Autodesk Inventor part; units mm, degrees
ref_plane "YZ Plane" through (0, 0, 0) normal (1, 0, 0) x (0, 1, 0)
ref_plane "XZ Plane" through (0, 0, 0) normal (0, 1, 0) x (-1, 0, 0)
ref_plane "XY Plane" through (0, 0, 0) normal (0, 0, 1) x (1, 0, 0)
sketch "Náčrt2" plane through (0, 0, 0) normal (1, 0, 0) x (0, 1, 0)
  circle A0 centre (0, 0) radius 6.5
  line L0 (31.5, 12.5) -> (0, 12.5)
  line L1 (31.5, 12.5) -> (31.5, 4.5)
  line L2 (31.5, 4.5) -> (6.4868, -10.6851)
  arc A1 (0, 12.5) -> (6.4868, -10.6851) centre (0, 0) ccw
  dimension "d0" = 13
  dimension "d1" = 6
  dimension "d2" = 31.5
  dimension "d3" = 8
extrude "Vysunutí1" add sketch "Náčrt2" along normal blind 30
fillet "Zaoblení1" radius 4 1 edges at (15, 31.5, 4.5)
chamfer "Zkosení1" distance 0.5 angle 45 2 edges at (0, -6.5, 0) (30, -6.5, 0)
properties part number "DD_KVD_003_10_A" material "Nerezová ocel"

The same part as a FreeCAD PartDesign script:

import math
import FreeCAD as App
import Part
import Sketcher

V = App.Vector
Q = App.Units.Quantity


def edges_at(feature, points):
    """Names of the edges that pass closest to the given points."""
    edges = feature.Shape.Edges
    near = lambda p: min(range(len(edges)), key=lambda i: edges[i].distToShape(Part.Vertex(*p))[0])
    return sorted({f"Edge{near(p) + 1}" for p in points})

doc = App.newDocument("Part")
params = doc.addObject("Spreadsheet::Sheet", "Params")
for row, (alias, value) in enumerate([
    ("sketch1_diameter", "13 mm"),
    ("sketch1_height", "8 mm"),
    ("sketch1_width", "31.5 mm"),
    ("sketch1_radius", "12.5 mm"),
    ("pad1_length", "30 mm"),
    ("fillet_radius", "4 mm"),
    ("chamfer_size", "0.5 mm"),
], start=1):
    params.set(f"A{row}", alias)
    params.set(f"B{row}", "=" + value)
    params.setAlias(f"B{row}", alias)

body = doc.addObject("PartDesign::Body", "Body")

sketch1 = body.newObject("Sketcher::SketchObject", "Sketch")
sketch1.AttachmentSupport = (doc.getObject("YZ_Plane"), [""])
sketch1.MapMode = "FlatFace"
sketch1.addGeometry([
    Part.LineSegment(V(31.5, 4.5, 0), V(31.5, 12.5, 0)),
    Part.LineSegment(V(31.5, 12.5, 0), V(0, 12.5, 0)),
    Part.ArcOfCircle(Part.Circle(V(0, 0, 0), V(0, 0, 1), 12.5), math.radians(90), math.radians(301.261451)),
    Part.LineSegment(V(6.4868, -10.6851, 0), V(31.5, 4.5, 0)),
    Part.Circle(V(0, 0, 0), V(0, 0, 1), 6.5),
], False)
sketch1.addConstraint([
    Sketcher.Constraint("Coincident", 0, 2, 1, 1),
    Sketcher.Constraint("Tangent", 1, 2, 2, 1),
    Sketcher.Constraint("Tangent", 2, 2, 3, 1),
    Sketcher.Constraint("Coincident", 3, 2, 0, 1),
    Sketcher.Constraint("Vertical", 0),
    Sketcher.Constraint("Horizontal", 1),
    Sketcher.Constraint("Coincident", 2, 3, -1, 1),
    Sketcher.Constraint("Coincident", 4, 3, -1, 1),
    Sketcher.Constraint("Diameter", 4, Q("13 mm")),
    Sketcher.Constraint("DistanceY", 0, 1, 0, 2, Q("8 mm")),
    Sketcher.Constraint("DistanceX", 1, 2, 1, 1, Q("31.5 mm")),
    Sketcher.Constraint("Radius", 2, Q("12.5 mm")),
])
sketch1.setExpression("Constraints[8]", "Params.sketch1_diameter")
sketch1.setExpression("Constraints[9]", "Params.sketch1_height")
sketch1.setExpression("Constraints[10]", "Params.sketch1_width")
sketch1.setExpression("Constraints[11]", "Params.sketch1_radius")
pad1 = body.newObject("PartDesign::Pad", "Pad")
pad1.Profile = sketch1
pad1.setExpression("Length", "Params.pad1_length")
doc.recompute()

fillet = body.newObject("PartDesign::Fillet", "Fillet")
fillet.Base = (pad1, edges_at(pad1, [(15, 31.5, 4.5)]))
fillet.setExpression("Radius", "Params.fillet_radius")
doc.recompute()

chamfer = body.newObject("PartDesign::Chamfer", "Chamfer")
chamfer.Base = (fillet, edges_at(fillet, [(0, -6.5, 0), (30, -6.5, 0)]))
chamfer.setExpression("Size", "Params.chamfer_size")

doc.recompute()
